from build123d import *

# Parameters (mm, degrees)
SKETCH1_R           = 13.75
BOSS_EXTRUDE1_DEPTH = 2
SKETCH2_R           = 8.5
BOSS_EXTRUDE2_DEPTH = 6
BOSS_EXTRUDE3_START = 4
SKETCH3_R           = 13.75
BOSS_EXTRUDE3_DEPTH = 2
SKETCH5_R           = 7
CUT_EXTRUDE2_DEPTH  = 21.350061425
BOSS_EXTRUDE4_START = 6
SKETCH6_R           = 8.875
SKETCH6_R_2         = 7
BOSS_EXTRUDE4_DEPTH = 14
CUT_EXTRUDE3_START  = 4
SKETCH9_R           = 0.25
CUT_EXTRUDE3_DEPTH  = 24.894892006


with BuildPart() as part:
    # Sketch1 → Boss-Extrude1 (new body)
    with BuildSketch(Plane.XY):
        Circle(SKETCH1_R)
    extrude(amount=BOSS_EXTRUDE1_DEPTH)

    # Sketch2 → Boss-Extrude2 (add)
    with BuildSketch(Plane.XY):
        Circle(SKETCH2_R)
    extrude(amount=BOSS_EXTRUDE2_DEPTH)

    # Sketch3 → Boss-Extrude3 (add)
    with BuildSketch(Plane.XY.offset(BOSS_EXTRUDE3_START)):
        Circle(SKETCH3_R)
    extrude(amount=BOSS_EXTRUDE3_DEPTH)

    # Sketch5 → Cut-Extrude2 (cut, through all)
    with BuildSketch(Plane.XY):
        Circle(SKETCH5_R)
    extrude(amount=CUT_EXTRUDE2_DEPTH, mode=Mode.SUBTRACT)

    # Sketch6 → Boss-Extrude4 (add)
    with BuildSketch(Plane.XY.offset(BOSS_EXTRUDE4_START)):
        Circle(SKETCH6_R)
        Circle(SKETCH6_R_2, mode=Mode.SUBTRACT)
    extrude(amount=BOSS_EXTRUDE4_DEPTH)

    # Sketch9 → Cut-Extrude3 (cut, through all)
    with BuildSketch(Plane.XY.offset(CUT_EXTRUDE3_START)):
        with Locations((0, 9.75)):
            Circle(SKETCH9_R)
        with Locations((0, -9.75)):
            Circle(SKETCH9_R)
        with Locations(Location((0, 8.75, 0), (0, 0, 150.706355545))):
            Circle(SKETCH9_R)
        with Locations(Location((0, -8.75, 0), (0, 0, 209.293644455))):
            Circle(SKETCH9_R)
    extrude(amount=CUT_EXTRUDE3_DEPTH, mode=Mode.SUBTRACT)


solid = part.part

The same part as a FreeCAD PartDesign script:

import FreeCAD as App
import Part
import Sketcher

V = App.Vector
Q = App.Units.Quantity

doc = App.newDocument("Part")
body = doc.addObject("PartDesign::Body", "Body")

# Sketch on XY plane
sketch1 = body.newObject("Sketcher::SketchObject", "Sketch")
sketch1.AttachmentSupport = (doc.getObject("XY_Plane"), [""])
sketch1.MapMode = "FlatFace"
sketch1.addGeometry(Part.Circle(V(0, 0, 0), V(0, 0, 1), 14), False)
sketch1.addConstraint(Sketcher.Constraint("Coincident", 0, 3, -1, 1))
sketch1.addConstraint(Sketcher.Constraint("Diameter", 0, Q("27.5 mm")))
pad1 = body.newObject("PartDesign::Pad", "Pad")
pad1.Profile = sketch1
pad1.Length = 2

# Sketch on XY plane
sketch2 = body.newObject("Sketcher::SketchObject", "Sketch001")
sketch2.AttachmentSupport = (doc.getObject("XY_Plane"), [""])
sketch2.MapMode = "FlatFace"
sketch2.addGeometry(Part.Circle(V(0, 0, 0), V(0, 0, 1), 8), False)
sketch2.addConstraint(Sketcher.Constraint("Coincident", 0, 3, -1, 1))
sketch2.addConstraint(Sketcher.Constraint("Diameter", 0, Q("17 mm")))
pad2 = body.newObject("PartDesign::Pad", "Pad001")
pad2.Profile = sketch2
pad2.Length = 6

# Sketch on XY plane
sketch3 = body.newObject("Sketcher::SketchObject", "Sketch002")
sketch3.AttachmentSupport = (doc.getObject("XY_Plane"), [""])
sketch3.MapMode = "FlatFace"
sketch3.AttachmentOffset = App.Placement(V(0, 0, 4), App.Rotation())
sketch3.addGeometry(Part.Circle(V(0, 0, 0), V(0, 0, 1), 14), False)
sketch3.addConstraint(Sketcher.Constraint("Coincident", 0, 3, -1, 1))
sketch3.addConstraint(Sketcher.Constraint("Diameter", 0, Q("27.5 mm")))
pad3 = body.newObject("PartDesign::Pad", "Pad002")
pad3.Profile = sketch3
pad3.Length = 2

# Sketch on XY plane
sketch4 = body.newObject("Sketcher::SketchObject", "Sketch003")
sketch4.AttachmentSupport = (doc.getObject("XY_Plane"), [""])
sketch4.MapMode = "FlatFace"
sketch4.addGeometry(Part.Circle(V(0, 0, 0), V(0, 0, 1), 7), False)
sketch4.addConstraint(Sketcher.Constraint("Coincident", 0, 3, -1, 1))
sketch4.addConstraint(Sketcher.Constraint("Diameter", 0, Q("14 mm")))
pocket1 = body.newObject("PartDesign::Pocket", "Pocket")
pocket1.Profile = sketch4
pocket1.Type = "ThroughAll"
pocket1.Reversed = True

# Sketch on XY plane
sketch5 = body.newObject("Sketcher::SketchObject", "Sketch004")
sketch5.AttachmentSupport = (doc.getObject("XY_Plane"), [""])
sketch5.MapMode = "FlatFace"
sketch5.AttachmentOffset = App.Placement(V(0, 0, 6), App.Rotation())
sketch5.addGeometry(Part.Circle(V(0, 0, 0), V(0, 0, 1), 9), False)
sketch5.addGeometry(Part.Circle(V(0, 0, 0), V(0, 0, 1), 7), False)
sketch5.addConstraint(Sketcher.Constraint("Coincident", 0, 3, -1, 1))
sketch5.addConstraint(Sketcher.Constraint("Coincident", 1, 3, -1, 1))
sketch5.addConstraint(Sketcher.Constraint("Diameter", 1, Q("14 mm")))
sketch5.addConstraint(Sketcher.Constraint("Diameter", 0, Q("17.75 mm")))
pad4 = body.newObject("PartDesign::Pad", "Pad003")
pad4.Profile = sketch5
pad4.Length = 14

# Sketch on XY plane
sketch6 = body.newObject("Sketcher::SketchObject", "Sketch005")
sketch6.AttachmentSupport = (doc.getObject("XY_Plane"), [""])
sketch6.MapMode = "FlatFace"
sketch6.AttachmentOffset = App.Placement(V(0, 0, 4), App.Rotation())
sketch6.addGeometry(Part.Circle(V(0, 9.75, 0), V(0, 0, 1), 0.25), False)
sketch6.addGeometry(Part.Circle(V(0, -9.75, 0), V(0, 0, 1), 0.25), False)
sketch6.addGeometry(Part.Circle(V(0, 8.75, 0), V(0, 0, 1), 0.25), False)
sketch6.addGeometry(Part.Circle(V(0, -8.75, 0), V(0, 0, 1), 0.25), False)
sketch6.addConstraint(Sketcher.Constraint("Equal", 0, 1))
sketch6.addConstraint(Sketcher.Constraint("Equal", 1, 2))
sketch6.addConstraint(Sketcher.Constraint("Equal", 2, 3))
sketch6.addConstraint(Sketcher.Constraint("Symmetric", 0, 3, 1, 3, -1, 1))
sketch6.addConstraint(Sketcher.Constraint("Symmetric", 2, 3, 3, 3, -1, 1))
sketch6.addConstraint(Sketcher.Constraint("PointOnObject", 0, 3, -2))
sketch6.addConstraint(Sketcher.Constraint("PointOnObject", 2, 3, -2))
sketch6.addConstraint(Sketcher.Constraint("Diameter", 0, Q("0.5 mm")))
sketch6.addConstraint(Sketcher.Constraint("DistanceY", 2, 3, 0, 3, Q("1 mm")))
sketch6.addConstraint(Sketcher.Constraint("DistanceY", 1, 3, 0, 3, Q("19.5 mm")))
pocket2 = body.newObject("PartDesign::Pocket", "Pocket001")
pocket2.Profile = sketch6
pocket2.Type = "ThroughAll"
pocket2.Reversed = True

doc.recompute()
